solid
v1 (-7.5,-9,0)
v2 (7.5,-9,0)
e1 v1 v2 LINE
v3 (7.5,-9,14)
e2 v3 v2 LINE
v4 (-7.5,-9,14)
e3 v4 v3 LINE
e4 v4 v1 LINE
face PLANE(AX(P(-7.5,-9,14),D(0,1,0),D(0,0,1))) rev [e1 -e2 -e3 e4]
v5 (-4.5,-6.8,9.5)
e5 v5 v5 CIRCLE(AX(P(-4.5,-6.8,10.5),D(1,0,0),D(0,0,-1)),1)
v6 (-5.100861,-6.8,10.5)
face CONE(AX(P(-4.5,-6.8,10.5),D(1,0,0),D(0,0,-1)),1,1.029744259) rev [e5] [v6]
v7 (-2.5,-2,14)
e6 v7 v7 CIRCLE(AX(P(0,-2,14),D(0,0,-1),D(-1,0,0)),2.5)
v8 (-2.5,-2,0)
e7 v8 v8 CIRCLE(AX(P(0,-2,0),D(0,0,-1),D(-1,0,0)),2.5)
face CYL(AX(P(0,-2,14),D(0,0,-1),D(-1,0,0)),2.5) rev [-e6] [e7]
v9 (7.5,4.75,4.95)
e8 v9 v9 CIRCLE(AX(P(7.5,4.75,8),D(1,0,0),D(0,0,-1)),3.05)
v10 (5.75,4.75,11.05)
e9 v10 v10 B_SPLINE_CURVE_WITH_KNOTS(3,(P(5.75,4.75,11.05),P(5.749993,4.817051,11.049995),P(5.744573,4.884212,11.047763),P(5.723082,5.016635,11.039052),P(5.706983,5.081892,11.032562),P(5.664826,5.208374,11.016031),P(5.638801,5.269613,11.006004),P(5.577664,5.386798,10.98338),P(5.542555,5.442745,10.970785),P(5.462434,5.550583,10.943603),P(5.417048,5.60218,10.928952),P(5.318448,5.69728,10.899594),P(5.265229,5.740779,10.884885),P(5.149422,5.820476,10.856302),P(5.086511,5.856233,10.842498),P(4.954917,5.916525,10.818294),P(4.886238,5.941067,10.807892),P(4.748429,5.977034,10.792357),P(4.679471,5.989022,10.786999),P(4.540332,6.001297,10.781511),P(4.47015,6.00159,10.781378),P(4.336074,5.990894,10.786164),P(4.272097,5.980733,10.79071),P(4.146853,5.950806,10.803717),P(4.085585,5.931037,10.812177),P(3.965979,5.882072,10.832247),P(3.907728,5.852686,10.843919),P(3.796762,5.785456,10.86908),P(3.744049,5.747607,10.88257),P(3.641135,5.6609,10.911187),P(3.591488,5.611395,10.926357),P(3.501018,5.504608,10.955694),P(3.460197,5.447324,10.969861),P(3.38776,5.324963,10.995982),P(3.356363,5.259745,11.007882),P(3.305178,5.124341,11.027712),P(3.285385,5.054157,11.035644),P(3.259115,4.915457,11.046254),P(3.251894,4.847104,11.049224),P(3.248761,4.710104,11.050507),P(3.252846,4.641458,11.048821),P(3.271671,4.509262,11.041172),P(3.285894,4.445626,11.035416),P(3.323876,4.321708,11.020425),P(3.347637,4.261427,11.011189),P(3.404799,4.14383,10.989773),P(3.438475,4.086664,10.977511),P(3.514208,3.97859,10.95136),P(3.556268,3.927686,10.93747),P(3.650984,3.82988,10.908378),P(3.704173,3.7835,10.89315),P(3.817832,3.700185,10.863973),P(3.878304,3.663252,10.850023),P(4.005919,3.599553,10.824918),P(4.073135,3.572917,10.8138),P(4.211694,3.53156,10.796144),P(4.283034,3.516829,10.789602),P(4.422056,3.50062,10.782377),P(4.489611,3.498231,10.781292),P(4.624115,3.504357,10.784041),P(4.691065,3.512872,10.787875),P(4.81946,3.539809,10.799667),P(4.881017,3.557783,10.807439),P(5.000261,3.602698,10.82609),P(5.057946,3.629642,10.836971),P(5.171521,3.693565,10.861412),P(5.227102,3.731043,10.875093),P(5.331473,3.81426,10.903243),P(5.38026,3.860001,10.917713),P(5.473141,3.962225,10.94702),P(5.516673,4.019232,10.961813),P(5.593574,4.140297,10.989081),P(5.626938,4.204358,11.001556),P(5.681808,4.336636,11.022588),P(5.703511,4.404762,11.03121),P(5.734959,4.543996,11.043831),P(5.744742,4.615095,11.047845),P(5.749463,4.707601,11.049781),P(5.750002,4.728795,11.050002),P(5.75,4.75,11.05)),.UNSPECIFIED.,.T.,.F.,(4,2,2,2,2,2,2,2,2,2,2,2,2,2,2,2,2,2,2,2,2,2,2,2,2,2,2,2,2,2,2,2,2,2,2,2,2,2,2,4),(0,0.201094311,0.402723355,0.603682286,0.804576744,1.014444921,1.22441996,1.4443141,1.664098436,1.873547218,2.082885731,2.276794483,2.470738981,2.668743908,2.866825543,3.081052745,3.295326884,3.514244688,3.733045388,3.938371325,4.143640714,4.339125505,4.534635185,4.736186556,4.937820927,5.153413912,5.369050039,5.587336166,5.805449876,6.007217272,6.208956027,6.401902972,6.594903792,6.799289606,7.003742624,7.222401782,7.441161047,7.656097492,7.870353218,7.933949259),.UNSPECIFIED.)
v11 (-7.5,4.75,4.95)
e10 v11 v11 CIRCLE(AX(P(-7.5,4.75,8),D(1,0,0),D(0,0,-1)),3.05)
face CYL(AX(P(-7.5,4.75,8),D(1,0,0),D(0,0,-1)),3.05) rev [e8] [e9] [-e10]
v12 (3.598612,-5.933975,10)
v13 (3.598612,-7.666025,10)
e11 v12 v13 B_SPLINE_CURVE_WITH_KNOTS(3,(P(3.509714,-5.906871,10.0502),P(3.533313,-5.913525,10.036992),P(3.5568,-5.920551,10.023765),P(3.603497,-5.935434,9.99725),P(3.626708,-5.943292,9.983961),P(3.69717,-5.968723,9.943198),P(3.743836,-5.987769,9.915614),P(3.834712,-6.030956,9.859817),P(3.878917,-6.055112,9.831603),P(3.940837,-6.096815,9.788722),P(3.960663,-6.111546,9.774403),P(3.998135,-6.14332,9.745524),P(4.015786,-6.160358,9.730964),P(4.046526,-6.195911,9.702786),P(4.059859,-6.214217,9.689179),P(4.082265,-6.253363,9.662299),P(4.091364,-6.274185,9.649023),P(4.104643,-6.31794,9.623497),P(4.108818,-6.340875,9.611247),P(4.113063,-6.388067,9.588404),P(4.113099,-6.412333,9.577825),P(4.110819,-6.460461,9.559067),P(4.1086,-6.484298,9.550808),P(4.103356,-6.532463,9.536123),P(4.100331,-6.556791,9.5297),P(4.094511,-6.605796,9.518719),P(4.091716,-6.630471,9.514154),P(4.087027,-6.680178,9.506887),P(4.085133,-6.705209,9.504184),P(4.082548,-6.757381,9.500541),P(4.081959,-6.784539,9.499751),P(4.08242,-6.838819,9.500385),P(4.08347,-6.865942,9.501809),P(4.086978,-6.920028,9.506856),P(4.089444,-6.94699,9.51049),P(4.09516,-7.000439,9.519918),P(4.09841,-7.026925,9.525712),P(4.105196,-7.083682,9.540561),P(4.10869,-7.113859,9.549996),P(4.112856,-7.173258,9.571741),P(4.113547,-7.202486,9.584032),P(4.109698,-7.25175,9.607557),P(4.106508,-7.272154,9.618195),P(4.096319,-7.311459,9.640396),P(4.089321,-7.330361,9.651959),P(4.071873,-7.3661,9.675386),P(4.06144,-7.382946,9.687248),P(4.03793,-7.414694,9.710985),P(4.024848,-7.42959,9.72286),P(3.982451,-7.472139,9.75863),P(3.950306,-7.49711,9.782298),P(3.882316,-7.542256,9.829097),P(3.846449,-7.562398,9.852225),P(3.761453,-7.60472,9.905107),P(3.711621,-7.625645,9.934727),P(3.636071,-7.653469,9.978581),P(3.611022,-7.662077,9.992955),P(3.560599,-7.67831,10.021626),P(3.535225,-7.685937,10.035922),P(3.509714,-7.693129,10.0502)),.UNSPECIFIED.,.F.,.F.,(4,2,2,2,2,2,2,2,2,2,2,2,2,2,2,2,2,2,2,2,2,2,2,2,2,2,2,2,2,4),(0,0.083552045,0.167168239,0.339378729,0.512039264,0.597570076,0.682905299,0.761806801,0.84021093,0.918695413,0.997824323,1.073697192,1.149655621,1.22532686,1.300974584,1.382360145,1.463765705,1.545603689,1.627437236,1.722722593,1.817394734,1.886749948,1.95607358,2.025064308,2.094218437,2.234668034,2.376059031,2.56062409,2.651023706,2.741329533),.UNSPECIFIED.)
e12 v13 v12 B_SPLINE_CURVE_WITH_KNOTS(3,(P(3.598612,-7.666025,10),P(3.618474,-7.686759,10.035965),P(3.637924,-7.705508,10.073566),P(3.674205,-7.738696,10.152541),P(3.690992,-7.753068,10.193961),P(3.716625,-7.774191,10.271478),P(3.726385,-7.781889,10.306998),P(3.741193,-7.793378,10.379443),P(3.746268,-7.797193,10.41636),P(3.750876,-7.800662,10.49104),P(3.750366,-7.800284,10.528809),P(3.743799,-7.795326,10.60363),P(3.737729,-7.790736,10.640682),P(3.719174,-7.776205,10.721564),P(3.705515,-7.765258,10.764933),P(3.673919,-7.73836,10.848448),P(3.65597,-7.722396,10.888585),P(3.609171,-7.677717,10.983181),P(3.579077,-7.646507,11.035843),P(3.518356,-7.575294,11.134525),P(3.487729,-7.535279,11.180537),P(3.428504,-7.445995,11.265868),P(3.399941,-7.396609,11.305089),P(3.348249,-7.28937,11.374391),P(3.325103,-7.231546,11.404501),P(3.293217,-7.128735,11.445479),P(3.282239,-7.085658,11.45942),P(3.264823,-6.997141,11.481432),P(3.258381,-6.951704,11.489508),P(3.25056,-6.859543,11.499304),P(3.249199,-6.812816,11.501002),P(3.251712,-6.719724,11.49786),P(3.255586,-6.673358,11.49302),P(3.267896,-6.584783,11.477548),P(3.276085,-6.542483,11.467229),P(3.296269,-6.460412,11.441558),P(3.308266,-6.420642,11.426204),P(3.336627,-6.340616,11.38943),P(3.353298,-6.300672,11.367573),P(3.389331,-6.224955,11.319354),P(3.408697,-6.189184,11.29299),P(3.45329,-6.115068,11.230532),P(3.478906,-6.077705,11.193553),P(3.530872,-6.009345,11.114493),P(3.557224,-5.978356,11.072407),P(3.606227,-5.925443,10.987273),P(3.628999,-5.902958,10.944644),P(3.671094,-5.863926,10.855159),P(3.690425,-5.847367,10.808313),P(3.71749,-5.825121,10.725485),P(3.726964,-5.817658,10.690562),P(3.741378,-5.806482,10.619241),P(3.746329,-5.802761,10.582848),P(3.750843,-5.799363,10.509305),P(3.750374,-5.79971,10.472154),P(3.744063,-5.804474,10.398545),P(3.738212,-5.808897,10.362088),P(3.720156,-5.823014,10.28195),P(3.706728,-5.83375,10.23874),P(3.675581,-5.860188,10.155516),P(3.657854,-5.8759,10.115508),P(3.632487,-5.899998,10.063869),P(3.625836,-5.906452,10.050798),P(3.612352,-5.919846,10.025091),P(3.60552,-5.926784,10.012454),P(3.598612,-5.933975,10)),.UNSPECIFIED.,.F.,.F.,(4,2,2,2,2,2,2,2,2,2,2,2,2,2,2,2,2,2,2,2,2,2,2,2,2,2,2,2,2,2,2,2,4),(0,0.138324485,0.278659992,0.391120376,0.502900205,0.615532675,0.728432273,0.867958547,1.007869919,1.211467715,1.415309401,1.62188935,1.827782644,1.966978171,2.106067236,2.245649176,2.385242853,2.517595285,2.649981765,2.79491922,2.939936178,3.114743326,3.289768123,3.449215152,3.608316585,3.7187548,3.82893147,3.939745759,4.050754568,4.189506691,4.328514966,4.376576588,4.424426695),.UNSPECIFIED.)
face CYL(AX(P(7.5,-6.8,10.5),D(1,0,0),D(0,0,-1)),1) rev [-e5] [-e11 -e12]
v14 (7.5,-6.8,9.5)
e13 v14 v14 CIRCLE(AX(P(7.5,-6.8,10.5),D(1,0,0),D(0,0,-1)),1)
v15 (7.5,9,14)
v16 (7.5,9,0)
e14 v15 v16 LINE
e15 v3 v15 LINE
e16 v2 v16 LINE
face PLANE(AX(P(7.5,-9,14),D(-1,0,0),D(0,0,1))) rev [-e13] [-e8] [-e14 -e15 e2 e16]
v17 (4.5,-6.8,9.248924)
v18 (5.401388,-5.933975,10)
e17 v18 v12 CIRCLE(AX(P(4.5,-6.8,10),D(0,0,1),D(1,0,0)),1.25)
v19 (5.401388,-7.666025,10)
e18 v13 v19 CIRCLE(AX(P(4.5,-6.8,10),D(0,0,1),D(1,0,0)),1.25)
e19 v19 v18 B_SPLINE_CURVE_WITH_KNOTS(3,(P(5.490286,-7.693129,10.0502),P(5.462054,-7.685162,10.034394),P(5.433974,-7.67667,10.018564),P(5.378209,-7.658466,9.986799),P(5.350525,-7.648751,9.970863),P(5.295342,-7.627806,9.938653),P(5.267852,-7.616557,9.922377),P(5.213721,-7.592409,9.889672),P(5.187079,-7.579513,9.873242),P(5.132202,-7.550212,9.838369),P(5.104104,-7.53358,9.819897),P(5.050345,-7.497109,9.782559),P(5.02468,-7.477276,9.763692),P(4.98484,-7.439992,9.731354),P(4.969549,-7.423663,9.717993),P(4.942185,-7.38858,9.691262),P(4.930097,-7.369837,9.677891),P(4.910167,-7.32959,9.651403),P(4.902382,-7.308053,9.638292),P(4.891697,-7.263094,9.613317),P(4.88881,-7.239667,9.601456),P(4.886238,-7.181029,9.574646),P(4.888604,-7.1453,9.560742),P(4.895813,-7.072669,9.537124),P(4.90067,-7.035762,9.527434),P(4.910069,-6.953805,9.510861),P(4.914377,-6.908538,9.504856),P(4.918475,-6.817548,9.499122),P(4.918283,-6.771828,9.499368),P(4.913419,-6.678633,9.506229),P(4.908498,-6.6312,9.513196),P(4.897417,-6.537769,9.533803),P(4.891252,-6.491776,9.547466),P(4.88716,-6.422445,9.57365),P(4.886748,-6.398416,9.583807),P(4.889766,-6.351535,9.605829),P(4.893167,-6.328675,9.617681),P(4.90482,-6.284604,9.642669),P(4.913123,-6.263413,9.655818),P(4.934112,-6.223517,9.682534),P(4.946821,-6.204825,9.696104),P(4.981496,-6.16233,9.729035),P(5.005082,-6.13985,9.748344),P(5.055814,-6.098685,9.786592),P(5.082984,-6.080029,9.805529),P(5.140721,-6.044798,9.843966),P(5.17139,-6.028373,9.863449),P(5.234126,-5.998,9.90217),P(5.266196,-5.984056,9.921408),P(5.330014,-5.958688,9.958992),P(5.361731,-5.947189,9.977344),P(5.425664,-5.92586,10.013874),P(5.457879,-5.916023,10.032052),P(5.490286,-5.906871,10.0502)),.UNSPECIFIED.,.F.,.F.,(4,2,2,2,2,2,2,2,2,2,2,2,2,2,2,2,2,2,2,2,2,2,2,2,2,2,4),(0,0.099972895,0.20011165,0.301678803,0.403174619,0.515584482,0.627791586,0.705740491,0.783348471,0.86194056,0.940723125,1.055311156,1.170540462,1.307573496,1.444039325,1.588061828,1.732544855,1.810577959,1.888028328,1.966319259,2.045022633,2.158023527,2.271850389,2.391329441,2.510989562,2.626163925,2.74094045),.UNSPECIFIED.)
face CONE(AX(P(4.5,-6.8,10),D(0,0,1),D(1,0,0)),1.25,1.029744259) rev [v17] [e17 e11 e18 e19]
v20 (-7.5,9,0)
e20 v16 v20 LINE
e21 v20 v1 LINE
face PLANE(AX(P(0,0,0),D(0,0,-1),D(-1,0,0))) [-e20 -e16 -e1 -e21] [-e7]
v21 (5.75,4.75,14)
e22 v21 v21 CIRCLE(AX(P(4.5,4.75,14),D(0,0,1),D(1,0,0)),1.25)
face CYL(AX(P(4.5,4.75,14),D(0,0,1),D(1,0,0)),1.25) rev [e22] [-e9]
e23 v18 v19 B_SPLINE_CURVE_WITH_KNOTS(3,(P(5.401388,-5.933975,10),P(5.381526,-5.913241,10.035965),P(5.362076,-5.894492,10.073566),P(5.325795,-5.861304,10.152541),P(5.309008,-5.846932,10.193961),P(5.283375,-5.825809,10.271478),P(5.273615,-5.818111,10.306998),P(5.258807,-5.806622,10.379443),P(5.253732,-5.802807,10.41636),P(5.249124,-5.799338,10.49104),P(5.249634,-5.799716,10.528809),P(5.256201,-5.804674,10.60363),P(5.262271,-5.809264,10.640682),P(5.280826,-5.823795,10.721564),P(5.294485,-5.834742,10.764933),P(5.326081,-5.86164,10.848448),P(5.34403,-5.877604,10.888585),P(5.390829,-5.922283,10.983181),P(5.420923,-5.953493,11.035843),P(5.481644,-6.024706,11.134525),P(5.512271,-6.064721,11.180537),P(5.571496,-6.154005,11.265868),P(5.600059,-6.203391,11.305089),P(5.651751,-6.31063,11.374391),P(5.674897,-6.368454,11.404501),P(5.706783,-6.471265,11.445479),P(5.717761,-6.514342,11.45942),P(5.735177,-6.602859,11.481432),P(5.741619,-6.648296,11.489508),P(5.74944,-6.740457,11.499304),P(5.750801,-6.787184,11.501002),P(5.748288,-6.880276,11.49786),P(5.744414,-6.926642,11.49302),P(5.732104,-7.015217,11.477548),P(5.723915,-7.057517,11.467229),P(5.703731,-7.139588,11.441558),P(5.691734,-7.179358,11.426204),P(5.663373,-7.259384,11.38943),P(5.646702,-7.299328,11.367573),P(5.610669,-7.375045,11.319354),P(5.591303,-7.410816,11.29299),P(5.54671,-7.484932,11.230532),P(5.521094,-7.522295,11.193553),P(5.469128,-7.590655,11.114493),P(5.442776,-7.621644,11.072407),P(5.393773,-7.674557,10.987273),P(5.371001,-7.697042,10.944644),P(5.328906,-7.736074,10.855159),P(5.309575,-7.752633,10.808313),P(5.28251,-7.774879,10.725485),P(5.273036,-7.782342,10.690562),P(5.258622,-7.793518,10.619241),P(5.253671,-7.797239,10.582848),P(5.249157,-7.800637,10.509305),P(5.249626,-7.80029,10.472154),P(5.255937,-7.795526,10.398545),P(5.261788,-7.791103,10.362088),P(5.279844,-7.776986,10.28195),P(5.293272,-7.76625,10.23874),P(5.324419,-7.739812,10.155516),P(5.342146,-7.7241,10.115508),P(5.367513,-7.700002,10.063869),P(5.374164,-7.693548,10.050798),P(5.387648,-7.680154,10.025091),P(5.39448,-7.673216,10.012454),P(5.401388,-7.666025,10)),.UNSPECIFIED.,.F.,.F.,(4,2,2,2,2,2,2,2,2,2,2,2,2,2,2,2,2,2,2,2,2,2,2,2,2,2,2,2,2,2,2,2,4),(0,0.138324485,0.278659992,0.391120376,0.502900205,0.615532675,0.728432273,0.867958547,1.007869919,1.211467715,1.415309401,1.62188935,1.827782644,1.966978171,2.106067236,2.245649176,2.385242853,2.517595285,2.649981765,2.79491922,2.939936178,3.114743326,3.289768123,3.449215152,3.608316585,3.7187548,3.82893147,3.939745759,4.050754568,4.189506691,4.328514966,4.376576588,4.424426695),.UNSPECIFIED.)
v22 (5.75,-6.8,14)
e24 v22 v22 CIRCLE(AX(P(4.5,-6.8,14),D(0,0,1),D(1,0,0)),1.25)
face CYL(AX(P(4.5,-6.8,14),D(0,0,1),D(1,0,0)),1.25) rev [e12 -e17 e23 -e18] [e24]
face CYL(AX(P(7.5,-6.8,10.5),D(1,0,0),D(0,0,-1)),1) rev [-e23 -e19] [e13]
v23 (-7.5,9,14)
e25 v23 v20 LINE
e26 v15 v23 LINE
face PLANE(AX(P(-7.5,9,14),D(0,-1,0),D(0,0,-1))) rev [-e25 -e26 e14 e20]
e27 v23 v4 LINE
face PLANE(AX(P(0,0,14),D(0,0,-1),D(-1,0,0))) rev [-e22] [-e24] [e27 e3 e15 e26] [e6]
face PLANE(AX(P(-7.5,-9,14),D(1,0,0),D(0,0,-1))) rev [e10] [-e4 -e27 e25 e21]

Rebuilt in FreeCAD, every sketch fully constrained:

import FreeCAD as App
import Part
import Sketcher

doc = App.newDocument("Part")
body = doc.addObject("PartDesign::Body", "Body")

# Sketch on XY plane
sketch1 = doc.addObject("Sketcher::SketchObject", "Sketch")
body.addObject(sketch1)
sketch1.AttachmentSupport = (doc.XY_Plane, [""])
sketch1.MapMode = "FlatFace"
sketch1.addGeometry([
    Part.LineSegment(App.Vector(-8, 9, 0), App.Vector(-8, -9, 0)),
    Part.LineSegment(App.Vector(-8, -9, 0), App.Vector(8, -9, 0)),
    Part.LineSegment(App.Vector(8, -9, 0), App.Vector(8, 9, 0)),
    Part.LineSegment(App.Vector(8, 9, 0), App.Vector(-8, 9, 0)),
], False)
sketch1.addConstraint([
    Sketcher.Constraint("Coincident", 0, 2, 1, 1),
    Sketcher.Constraint("Coincident", 1, 2, 2, 1),
    Sketcher.Constraint("Coincident", 2, 2, 3, 1),
    Sketcher.Constraint("Coincident", 3, 2, 0, 1),
    Sketcher.Constraint("Vertical", 0),
    Sketcher.Constraint("Horizontal", 1),
    Sketcher.Constraint("Vertical", 2),
    Sketcher.Constraint("Horizontal", 3),
    Sketcher.Constraint("Symmetric", 0, 2, 2, 2, -1, 1),
    Sketcher.Constraint("DistanceX", 1, 1, 1, 2, 15.0),
    Sketcher.Constraint("DistanceY", 0, 2, 0, 1, 18.0),
])
pad1 = doc.addObject("PartDesign::Pad", "Pad")
body.addObject(pad1)
pad1.Profile = sketch1
pad1.Length = 14

# Sketch on XY plane
sketch2 = doc.addObject("Sketcher::SketchObject", "Sketch001")
body.addObject(sketch2)
sketch2.AttachmentSupport = (doc.XY_Plane, [""])
sketch2.MapMode = "FlatFace"
sketch2.addGeometry(Part.Circle(App.Vector(0, -2, 0), App.Vector(0, 0, 1), 2.5), False)
sketch2.addConstraint([
    Sketcher.Constraint("PointOnObject", 0, 3, -2),
    Sketcher.Constraint("Diameter", 0, 5.0),
    Sketcher.Constraint("DistanceY", 0, 3, -1, 1, 2.0),
])
pocket1 = doc.addObject("PartDesign::Pocket", "Pocket")
body.addObject(pocket1)
pocket1.Profile = sketch2
pocket1.Type = "ThroughAll"
pocket1.Reversed = True

# Sketch on YZ plane
sketch3 = doc.addObject("Sketcher::SketchObject", "Sketch002")
body.addObject(sketch3)
sketch3.AttachmentSupport = (doc.YZ_Plane, [""])
sketch3.MapMode = "FlatFace"
sketch3.AttachmentOffset = App.Placement(App.Vector(0, 0, 7.5), App.Rotation())
sketch3.addGeometry(Part.Circle(App.Vector(4.8, 8, 0), App.Vector(0, 0, 1), 3), False)
sketch3.addConstraint([
    Sketcher.Constraint("Diameter", 0, 6.1),
    Sketcher.Constraint("DistanceY", -1, 1, 0, 3, 8.0),
    Sketcher.Constraint("DistanceX", -1, 1, 0, 3, 4.75),
])
pocket2 = doc.addObject("PartDesign::Pocket", "Pocket001")
body.addObject(pocket2)
pocket2.Profile = sketch3
pocket2.Type = "ThroughAll"

# Sketch on XY plane
sketch4 = doc.addObject("Sketcher::SketchObject", "Sketch003")
body.addObject(sketch4)
sketch4.AttachmentSupport = (doc.XY_Plane, [""])
sketch4.MapMode = "FlatFace"
sketch4.AttachmentOffset = App.Placement(App.Vector(0, 0, 14), App.Rotation())
sketch4.addGeometry([
    Part.Circle(App.Vector(4.5, 4.8, 0), App.Vector(0, 0, 1), 1.2),
    Part.Circle(App.Vector(4.5, -6.8, 0), App.Vector(0, 0, 1), 1.2),
], False)
sketch4.addConstraint([
    Sketcher.Constraint("Equal", 0, 1),
    Sketcher.Constraint("Vertical", 0, 3, 1, 3),
    Sketcher.Constraint("Diameter", 0, 2.5),
    Sketcher.Constraint("DistanceX", -1, 1, 0, 3, 4.5),
    Sketcher.Constraint("DistanceY", 1, 3, -1, 1, 6.8),
    Sketcher.Constraint("DistanceY", -1, 1, 0, 3, 4.75),
])
doc.recompute()
hole = doc.addObject("PartDesign::Hole", "Hole")
body.addObject(hole)
hole.Profile = sketch4
hole.ThreadType = "None"
hole.Diameter = 2.5
hole.DepthType = "Dimension"
hole.Depth = 4
hole.DrillPoint = "Angled"
hole.DrillPointAngle = 118

# Sketch on YZ plane
sketch5 = doc.addObject("Sketcher::SketchObject", "Sketch004")
body.addObject(sketch5)
sketch5.AttachmentSupport = (doc.YZ_Plane, [""])
sketch5.MapMode = "FlatFace"
sketch5.AttachmentOffset = App.Placement(App.Vector(0, 0, 7.5), App.Rotation())
sketch5.addGeometry(Part.Circle(App.Vector(-6.8, 10.5, 0), App.Vector(0, 0, 1), 1), False)
sketch5.addConstraint([
    Sketcher.Constraint("Diameter", 0, 2.0),
    Sketcher.Constraint("DistanceX", 0, 3, -1, 1, 6.8),
    Sketcher.Constraint("DistanceY", -1, 1, 0, 3, 10.5),
])
doc.recompute()
hole2 = doc.addObject("PartDesign::Hole", "Hole001")
body.addObject(hole2)
hole2.Profile = sketch5
hole2.ThreadType = "None"
hole2.Diameter = 2
hole2.DepthType = "Dimension"
hole2.Depth = 12
hole2.DrillPoint = "Angled"
hole2.DrillPointAngle = 118

doc.recompute()
